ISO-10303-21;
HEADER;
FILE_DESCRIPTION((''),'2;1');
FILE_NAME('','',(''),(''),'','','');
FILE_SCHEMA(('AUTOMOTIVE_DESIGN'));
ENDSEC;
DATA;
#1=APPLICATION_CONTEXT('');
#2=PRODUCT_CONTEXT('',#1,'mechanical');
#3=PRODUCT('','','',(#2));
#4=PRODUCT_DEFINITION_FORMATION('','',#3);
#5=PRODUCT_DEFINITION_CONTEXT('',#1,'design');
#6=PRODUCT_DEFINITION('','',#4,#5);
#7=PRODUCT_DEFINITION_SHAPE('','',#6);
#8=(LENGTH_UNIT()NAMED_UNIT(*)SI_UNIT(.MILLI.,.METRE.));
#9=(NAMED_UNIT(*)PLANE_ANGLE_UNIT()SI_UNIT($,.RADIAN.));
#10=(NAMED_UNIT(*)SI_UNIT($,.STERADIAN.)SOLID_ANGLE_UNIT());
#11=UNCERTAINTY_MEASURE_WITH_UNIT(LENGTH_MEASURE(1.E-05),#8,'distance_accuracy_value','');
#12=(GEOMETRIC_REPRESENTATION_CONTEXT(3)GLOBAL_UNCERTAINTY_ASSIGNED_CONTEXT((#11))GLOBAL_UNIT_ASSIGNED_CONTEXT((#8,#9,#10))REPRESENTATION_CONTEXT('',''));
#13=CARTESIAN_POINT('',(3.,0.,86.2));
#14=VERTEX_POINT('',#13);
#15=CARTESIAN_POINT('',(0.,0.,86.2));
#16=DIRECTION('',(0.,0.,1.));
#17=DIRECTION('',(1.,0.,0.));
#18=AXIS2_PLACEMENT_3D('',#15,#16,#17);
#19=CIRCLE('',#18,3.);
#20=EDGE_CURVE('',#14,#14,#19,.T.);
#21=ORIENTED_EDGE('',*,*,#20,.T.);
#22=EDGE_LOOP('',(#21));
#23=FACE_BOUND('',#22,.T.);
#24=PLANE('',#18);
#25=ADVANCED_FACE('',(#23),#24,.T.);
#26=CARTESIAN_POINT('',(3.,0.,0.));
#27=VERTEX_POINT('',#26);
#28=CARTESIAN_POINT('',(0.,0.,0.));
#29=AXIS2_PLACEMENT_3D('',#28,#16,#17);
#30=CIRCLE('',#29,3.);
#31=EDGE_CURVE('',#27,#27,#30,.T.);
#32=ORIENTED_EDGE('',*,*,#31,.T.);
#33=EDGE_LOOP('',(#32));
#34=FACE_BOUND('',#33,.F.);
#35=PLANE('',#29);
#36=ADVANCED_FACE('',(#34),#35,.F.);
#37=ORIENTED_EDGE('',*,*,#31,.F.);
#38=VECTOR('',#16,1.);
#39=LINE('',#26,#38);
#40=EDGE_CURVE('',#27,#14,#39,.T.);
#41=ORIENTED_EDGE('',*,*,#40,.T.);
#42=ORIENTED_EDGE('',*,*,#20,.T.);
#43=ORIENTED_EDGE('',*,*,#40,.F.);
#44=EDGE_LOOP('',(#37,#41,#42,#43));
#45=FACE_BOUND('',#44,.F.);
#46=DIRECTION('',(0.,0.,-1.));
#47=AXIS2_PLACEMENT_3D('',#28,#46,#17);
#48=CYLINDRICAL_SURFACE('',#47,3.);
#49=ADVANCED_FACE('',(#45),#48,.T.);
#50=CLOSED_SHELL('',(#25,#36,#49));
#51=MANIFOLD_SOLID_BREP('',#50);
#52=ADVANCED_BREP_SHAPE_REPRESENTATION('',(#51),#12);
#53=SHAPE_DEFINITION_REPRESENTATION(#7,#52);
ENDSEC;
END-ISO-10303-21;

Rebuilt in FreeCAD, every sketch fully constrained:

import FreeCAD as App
import Part
import Sketcher
from FreeCAD import Vector

doc = App.newDocument("Part")
body = doc.addObject("PartDesign::Body", "Body")

sketch1 = body.newObject("Sketcher::SketchObject", "Sketch")
sketch1.AttachmentSupport = (doc.getObject("XY_Plane"), [""])
sketch1.MapMode = "FlatFace"
sketch1.addGeometry(Part.Circle(Vector(0, 0, 0), Vector(0, 0, 1), 3), False)
sketch1.addConstraint([
    Sketcher.Constraint("Coincident", 0, 3, -1, 1),
    Sketcher.Constraint("Diameter", 0, 6.0),
])
pad1 = body.newObject("PartDesign::Pad", "Pad")
pad1.Profile = sketch1
pad1.Length = 86.2

doc.recompute()
